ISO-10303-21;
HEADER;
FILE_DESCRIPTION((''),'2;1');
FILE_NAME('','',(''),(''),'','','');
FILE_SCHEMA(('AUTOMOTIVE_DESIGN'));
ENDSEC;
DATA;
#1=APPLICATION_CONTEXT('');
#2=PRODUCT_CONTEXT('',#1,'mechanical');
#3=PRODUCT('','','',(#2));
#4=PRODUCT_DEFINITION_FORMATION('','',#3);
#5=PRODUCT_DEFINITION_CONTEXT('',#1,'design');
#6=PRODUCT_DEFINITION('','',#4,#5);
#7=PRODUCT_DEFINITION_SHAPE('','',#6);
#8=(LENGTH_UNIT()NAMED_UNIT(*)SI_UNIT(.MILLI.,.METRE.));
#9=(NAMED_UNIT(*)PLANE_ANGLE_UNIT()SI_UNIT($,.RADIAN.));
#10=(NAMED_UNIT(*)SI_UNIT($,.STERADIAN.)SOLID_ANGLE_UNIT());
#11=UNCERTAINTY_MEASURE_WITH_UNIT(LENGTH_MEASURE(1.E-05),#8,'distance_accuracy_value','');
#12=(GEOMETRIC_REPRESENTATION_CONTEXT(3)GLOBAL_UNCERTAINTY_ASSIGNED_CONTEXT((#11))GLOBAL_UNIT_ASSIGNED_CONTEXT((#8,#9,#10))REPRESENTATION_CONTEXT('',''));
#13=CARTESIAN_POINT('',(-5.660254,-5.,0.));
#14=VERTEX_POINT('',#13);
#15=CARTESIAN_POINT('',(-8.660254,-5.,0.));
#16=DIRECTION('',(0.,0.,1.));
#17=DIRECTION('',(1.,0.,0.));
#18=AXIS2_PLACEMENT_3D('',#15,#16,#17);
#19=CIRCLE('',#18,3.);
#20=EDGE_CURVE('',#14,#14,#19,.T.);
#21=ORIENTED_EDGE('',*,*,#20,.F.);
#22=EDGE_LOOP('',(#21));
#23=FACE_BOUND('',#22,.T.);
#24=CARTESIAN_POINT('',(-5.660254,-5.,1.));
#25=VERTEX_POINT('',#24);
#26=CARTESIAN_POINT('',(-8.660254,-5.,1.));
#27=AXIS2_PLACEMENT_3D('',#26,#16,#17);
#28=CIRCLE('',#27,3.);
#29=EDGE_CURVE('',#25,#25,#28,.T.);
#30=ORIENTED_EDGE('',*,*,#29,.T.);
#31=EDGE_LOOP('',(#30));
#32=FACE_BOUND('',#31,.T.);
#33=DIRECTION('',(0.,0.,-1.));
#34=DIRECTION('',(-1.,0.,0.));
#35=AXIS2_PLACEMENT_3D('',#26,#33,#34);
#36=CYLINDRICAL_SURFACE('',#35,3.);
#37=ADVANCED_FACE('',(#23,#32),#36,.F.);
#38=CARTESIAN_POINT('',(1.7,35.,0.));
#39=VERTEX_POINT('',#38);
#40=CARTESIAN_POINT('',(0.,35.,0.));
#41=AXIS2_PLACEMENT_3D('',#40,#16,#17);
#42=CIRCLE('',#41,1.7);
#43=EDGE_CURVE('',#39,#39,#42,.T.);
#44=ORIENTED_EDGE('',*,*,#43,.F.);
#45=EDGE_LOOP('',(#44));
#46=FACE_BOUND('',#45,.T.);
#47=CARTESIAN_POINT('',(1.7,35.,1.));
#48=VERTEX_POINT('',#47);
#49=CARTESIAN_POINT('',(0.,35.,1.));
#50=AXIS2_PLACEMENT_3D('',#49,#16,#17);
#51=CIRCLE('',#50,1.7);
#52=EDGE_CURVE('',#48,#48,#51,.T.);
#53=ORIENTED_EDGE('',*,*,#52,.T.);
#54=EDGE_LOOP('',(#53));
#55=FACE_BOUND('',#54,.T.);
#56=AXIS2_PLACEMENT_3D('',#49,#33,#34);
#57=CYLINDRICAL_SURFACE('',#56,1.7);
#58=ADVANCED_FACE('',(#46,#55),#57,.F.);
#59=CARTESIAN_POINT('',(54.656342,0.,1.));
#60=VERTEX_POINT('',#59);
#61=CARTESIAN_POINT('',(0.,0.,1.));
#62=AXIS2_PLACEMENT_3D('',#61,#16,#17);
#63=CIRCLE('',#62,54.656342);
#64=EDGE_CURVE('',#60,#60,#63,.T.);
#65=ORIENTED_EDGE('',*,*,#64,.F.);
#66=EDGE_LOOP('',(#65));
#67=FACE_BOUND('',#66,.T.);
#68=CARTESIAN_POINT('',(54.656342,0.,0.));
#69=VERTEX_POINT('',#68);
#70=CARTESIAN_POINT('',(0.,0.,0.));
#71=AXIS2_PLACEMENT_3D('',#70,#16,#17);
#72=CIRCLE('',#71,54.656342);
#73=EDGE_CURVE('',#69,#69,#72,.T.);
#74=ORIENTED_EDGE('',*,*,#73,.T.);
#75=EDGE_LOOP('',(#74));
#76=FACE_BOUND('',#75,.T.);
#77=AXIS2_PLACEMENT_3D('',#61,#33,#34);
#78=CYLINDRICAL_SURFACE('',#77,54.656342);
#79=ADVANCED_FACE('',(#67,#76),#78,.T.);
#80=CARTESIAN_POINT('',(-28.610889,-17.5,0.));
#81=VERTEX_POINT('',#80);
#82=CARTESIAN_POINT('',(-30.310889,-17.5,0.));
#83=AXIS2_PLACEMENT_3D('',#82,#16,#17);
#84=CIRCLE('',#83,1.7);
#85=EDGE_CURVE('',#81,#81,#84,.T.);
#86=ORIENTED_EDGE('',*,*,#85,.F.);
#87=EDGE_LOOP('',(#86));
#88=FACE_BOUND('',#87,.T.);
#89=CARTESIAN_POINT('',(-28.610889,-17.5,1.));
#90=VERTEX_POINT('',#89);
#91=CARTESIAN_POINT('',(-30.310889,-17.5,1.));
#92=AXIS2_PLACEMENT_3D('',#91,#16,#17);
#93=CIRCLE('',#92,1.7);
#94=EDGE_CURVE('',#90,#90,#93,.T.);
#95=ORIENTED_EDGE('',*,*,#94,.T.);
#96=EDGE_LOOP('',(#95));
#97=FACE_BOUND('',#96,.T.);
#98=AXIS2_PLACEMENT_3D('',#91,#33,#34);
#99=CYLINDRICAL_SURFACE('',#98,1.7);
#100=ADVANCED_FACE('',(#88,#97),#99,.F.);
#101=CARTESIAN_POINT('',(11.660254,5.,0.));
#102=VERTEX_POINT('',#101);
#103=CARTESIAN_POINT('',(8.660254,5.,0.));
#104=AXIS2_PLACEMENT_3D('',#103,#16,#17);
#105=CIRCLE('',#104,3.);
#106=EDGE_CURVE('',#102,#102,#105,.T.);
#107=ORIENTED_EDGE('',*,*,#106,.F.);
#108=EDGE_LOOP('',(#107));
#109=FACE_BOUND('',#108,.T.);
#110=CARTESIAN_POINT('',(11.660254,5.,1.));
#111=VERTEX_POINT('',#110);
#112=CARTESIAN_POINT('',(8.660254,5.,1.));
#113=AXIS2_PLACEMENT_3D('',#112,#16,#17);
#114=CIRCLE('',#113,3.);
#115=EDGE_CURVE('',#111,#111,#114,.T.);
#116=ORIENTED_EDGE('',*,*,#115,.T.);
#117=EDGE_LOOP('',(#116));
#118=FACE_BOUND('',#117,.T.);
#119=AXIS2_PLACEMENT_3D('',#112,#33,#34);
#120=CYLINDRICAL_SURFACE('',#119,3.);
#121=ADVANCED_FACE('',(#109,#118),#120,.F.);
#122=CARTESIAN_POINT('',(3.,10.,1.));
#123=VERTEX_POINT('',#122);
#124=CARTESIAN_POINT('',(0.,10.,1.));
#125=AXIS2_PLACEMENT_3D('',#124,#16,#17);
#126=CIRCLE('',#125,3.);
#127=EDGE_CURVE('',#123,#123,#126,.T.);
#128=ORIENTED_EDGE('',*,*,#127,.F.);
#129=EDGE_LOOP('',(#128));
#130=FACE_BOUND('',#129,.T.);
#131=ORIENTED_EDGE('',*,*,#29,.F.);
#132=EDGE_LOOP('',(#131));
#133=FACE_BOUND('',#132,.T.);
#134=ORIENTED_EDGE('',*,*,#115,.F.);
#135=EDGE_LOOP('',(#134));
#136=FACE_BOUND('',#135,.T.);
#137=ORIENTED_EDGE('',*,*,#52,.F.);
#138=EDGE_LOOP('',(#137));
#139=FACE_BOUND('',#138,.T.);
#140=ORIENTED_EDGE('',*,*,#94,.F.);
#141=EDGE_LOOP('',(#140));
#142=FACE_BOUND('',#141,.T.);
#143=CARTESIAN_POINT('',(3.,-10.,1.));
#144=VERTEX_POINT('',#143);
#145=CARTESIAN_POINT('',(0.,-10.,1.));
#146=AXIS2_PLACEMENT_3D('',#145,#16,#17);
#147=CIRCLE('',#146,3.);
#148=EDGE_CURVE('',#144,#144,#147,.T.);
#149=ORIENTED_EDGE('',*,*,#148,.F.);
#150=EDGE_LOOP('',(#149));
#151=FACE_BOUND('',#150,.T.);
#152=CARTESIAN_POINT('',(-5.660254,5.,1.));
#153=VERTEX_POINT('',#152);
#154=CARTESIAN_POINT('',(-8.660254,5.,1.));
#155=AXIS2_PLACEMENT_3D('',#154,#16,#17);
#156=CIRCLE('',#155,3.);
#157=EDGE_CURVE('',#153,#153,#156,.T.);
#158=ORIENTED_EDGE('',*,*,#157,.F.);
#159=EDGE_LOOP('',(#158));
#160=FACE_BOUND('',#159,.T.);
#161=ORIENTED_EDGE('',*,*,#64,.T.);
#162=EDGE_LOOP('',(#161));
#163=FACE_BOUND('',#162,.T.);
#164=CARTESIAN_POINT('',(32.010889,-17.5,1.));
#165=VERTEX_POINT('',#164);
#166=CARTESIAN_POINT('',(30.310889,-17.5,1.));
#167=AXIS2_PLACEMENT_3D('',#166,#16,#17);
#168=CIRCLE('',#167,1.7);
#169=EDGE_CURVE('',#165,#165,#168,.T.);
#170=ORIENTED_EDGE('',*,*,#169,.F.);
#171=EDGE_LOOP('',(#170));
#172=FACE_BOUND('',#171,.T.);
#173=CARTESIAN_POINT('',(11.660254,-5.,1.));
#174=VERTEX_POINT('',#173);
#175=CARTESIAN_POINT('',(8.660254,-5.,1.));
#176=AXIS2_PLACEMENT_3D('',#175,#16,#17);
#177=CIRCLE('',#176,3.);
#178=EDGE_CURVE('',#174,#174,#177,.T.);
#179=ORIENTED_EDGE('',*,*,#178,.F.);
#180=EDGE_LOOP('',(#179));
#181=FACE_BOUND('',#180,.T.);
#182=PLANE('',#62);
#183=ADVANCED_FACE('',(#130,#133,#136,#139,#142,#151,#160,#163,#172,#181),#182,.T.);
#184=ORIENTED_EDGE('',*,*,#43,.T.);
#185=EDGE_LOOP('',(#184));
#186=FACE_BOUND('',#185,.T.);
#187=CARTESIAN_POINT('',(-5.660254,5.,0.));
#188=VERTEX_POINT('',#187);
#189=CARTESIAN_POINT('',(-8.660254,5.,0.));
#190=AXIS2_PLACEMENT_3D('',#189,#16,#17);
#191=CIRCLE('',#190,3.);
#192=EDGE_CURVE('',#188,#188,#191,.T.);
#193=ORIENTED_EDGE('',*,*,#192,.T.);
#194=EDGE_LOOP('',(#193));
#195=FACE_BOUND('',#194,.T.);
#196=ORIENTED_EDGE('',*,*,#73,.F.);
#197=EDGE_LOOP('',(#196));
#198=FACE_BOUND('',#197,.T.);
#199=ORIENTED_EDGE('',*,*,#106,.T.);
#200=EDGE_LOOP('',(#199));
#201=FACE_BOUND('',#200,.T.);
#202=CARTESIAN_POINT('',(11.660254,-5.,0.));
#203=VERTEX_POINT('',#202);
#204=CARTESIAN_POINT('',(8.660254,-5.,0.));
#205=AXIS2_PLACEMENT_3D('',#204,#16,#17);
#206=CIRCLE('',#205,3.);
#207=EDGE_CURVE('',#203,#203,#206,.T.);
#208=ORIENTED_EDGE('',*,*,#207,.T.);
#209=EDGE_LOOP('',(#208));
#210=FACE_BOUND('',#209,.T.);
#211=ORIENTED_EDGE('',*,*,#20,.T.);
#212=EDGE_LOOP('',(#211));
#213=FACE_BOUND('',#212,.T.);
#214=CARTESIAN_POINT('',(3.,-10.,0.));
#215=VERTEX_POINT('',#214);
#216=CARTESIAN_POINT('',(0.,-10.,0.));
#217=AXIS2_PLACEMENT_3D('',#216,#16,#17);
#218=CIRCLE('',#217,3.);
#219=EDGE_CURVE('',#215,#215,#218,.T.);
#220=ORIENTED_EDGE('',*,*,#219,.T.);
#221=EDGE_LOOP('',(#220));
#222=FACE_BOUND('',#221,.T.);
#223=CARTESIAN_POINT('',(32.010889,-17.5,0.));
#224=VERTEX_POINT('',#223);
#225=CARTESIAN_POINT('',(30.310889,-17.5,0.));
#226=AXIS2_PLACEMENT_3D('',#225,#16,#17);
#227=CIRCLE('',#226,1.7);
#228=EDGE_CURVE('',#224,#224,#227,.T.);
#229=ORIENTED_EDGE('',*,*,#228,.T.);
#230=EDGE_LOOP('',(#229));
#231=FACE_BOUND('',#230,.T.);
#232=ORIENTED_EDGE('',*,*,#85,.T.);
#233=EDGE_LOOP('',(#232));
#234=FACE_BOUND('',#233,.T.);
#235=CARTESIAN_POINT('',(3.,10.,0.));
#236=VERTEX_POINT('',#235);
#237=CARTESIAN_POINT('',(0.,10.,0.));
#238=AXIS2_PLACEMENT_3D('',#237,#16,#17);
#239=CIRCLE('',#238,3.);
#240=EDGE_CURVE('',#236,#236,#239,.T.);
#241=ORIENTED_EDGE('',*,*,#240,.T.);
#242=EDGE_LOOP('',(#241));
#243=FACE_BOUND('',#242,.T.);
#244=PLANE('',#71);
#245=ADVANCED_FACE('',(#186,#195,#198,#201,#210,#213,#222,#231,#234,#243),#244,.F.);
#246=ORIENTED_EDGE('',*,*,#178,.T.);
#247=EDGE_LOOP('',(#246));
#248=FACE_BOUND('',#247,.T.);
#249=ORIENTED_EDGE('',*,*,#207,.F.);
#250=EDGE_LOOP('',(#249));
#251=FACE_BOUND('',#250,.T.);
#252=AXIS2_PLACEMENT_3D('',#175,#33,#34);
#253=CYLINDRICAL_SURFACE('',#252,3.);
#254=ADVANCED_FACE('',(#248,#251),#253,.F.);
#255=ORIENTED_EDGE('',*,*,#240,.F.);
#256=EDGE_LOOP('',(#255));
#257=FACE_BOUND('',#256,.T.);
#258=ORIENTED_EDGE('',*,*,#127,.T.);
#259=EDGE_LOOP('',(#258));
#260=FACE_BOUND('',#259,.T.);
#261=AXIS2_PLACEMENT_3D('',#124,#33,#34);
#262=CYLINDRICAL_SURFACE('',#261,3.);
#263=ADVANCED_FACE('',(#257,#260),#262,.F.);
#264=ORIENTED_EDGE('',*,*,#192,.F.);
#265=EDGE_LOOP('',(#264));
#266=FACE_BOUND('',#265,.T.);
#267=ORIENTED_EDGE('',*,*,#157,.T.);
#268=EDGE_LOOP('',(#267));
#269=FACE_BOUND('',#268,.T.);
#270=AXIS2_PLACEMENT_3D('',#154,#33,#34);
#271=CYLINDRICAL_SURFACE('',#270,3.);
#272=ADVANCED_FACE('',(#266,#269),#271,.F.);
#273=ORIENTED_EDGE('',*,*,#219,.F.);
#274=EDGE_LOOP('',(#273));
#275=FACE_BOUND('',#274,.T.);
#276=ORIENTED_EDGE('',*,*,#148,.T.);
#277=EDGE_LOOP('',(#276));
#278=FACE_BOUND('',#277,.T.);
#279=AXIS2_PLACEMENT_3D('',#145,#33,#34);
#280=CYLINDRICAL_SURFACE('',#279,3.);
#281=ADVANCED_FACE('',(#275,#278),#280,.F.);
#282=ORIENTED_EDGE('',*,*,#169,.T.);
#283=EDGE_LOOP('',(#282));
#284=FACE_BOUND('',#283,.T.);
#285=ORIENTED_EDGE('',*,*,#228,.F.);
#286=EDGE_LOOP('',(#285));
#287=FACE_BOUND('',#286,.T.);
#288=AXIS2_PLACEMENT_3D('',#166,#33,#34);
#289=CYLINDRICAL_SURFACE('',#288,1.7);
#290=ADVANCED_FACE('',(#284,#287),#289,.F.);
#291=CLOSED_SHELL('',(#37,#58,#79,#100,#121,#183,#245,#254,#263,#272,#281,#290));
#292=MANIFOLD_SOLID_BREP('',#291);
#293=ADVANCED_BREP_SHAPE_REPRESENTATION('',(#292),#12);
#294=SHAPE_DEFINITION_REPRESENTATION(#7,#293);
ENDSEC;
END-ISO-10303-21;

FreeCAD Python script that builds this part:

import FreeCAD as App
import Part
import Sketcher

V = App.Vector
Q = App.Units.Quantity

doc = App.newDocument("Part")
body = doc.addObject("PartDesign::Body", "Body")

# Sketch on XY plane
sketch1 = doc.addObject("Sketcher::SketchObject", "Sketch")
body.addObject(sketch1)
sketch1.AttachmentSupport = (doc.XY_Plane, [""])
sketch1.MapMode = "FlatFace"
sketch1.addGeometry(Part.Circle(V(0, 0, 0), V(0, 0, 1), 54.7), False)
sketch1.addGeometry(Part.Circle(V(-30.3, -17.5, 0), V(0, 0, 1), 1.7), False)
sketch1.addGeometry(Part.Circle(V(0, -10, 0), V(0, 0, 1), 3), False)
sketch1.addGeometry(Part.Circle(V(-8.7, -5, 0), V(0, 0, 1), 3), False)
sketch1.addGeometry(Part.Circle(V(-8.7, 5, 0), V(0, 0, 1), 3), False)
sketch1.addGeometry(Part.Circle(V(30.3, -17.5, 0), V(0, 0, 1), 1.7), False)
sketch1.addGeometry(Part.Circle(V(8.7, -5, 0), V(0, 0, 1), 3), False)
sketch1.addGeometry(Part.Circle(V(8.7, 5, 0), V(0, 0, 1), 3), False)
sketch1.addGeometry(Part.Circle(V(0, 10, 0), V(0, 0, 1), 3), False)
sketch1.addGeometry(Part.Circle(V(0, 35, 0), V(0, 0, 1), 1.7), False)
sketch1.addConstraint(Sketcher.Constraint("Coincident", 0, 3, -1, 1))
sketch1.addConstraint(Sketcher.Constraint("Equal", 2, 3))
sketch1.addConstraint(Sketcher.Constraint("Equal", 3, 4))
sketch1.addConstraint(Sketcher.Constraint("Equal", 1, 5))
sketch1.addConstraint(Sketcher.Constraint("Equal", 4, 6))
sketch1.addConstraint(Sketcher.Constraint("Equal", 6, 7))
sketch1.addConstraint(Sketcher.Constraint("Equal", 7, 8))
sketch1.addConstraint(Sketcher.Constraint("Equal", 5, 9))
sketch1.addConstraint(Sketcher.Constraint("Symmetric", 4, 3, 6, 3, -1, 1))
sketch1.addConstraint(Sketcher.Constraint("Symmetric", 3, 3, 7, 3, -1, 1))
sketch1.addConstraint(Sketcher.Constraint("Symmetric", 2, 3, 8, 3, -1, 1))
sketch1.addConstraint(Sketcher.Constraint("Symmetric", 1, 3, 5, 3, -2))
sketch1.addConstraint(Sketcher.Constraint("Symmetric", 3, 3, 6, 3, -2))
sketch1.addConstraint(Sketcher.Constraint("PointOnObject", 2, 3, -2))
sketch1.addConstraint(Sketcher.Constraint("PointOnObject", 9, 3, -2))
sketch1.addConstraint(Sketcher.Constraint("Diameter", 2, Q("6 mm")))
sketch1.addConstraint(Sketcher.Constraint("Diameter", 1, Q("3.4 mm")))
sketch1.addConstraint(Sketcher.Constraint("DistanceY", 2, 3, -1, 1, Q("10 mm")))
sketch1.addConstraint(Sketcher.Constraint("DistanceY", 3, 3, -1, 1, Q("5 mm")))
sketch1.addConstraint(Sketcher.Constraint("DistanceY", -1, 1, 9, 3, Q("35 mm")))
sketch1.addConstraint(Sketcher.Constraint("DistanceY", 1, 3, -1, 1, Q("17.5 mm")))
sketch1.addConstraint(Sketcher.Constraint("Diameter", 0, Q("109.312684 mm")))
sketch1.addConstraint(Sketcher.Constraint("DistanceX", 1, 3, -1, 1, Q("30.310889 mm")))
sketch1.addConstraint(Sketcher.Constraint("DistanceX", 3, 3, 6, 3, Q("17.320508 mm")))
pad1 = doc.addObject("PartDesign::Pad", "Pad")
body.addObject(pad1)
pad1.Profile = sketch1
pad1.Length = 1

doc.recompute()
